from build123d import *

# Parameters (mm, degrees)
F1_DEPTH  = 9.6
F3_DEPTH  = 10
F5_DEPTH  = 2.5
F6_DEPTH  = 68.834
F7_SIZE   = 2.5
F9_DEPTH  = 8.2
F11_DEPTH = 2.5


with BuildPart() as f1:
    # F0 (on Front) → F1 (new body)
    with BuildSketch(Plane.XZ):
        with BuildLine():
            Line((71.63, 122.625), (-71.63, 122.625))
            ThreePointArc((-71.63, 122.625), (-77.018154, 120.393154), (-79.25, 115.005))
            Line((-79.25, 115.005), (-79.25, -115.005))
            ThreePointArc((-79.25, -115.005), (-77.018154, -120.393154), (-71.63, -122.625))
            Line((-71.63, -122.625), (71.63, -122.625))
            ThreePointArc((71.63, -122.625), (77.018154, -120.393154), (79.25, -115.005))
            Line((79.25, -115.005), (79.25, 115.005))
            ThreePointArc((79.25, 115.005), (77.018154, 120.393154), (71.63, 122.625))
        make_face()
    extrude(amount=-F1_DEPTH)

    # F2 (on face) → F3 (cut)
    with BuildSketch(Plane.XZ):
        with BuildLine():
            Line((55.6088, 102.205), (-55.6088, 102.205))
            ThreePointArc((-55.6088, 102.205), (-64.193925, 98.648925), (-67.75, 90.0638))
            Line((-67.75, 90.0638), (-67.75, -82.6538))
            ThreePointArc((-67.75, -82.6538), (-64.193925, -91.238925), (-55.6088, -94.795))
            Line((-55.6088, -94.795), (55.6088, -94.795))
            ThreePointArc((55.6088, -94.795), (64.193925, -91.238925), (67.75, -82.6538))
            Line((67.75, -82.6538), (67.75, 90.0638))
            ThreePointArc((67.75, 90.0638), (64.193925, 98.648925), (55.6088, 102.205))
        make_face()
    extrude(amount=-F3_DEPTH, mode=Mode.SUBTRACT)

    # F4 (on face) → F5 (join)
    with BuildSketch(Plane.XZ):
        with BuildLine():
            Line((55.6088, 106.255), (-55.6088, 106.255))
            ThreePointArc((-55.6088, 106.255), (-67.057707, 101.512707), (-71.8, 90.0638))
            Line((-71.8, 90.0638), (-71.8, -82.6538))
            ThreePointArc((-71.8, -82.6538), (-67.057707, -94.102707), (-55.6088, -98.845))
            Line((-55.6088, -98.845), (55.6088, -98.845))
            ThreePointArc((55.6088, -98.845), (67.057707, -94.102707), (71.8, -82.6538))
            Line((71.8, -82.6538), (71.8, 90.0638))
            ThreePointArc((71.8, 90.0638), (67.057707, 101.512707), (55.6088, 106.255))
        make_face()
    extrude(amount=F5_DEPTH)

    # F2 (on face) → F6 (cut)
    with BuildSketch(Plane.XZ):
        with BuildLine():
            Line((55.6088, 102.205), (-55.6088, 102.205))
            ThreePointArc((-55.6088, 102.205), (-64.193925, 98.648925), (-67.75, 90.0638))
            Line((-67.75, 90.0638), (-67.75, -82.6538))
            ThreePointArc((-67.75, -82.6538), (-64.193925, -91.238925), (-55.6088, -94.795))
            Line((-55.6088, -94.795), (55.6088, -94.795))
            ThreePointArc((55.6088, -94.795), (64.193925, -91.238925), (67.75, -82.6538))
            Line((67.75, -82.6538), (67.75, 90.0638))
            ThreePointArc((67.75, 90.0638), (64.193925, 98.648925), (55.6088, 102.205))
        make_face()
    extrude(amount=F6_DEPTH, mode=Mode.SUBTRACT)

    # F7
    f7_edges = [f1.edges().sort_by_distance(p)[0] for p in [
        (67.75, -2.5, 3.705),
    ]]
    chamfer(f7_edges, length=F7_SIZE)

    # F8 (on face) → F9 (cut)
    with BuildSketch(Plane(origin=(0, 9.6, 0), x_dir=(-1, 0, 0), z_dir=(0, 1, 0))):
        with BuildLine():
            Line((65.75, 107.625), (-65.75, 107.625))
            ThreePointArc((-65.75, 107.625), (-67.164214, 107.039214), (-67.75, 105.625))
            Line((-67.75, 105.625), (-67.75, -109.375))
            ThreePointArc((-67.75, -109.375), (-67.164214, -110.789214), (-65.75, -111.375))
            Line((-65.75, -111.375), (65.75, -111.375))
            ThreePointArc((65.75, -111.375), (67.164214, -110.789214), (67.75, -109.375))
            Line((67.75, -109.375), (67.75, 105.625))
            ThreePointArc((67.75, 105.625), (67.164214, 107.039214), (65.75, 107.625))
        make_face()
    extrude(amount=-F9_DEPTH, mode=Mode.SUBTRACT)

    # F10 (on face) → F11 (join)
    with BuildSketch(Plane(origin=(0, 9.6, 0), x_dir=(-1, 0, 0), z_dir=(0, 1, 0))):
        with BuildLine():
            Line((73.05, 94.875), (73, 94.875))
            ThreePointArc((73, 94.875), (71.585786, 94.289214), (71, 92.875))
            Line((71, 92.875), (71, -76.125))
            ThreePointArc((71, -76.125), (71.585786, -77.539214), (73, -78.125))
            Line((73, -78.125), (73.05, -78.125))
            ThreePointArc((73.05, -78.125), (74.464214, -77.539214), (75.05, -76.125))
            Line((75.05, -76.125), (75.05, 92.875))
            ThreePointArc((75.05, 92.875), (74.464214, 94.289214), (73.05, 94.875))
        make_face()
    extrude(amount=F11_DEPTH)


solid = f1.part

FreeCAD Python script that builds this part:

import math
import FreeCAD as App
import Part
import Sketcher

V = App.Vector
Q = App.Units.Quantity


def edges_at(feature, points):
    """Names of the edges that pass closest to the given points."""
    edges = feature.Shape.Edges
    near = lambda p: min(range(len(edges)), key=lambda i: edges[i].distToShape(Part.Vertex(*p))[0])
    return sorted({f"Edge{near(p) + 1}" for p in points})

doc = App.newDocument("Part")
params = doc.addObject("Spreadsheet::Sheet", "Params")
for row, (alias, value) in enumerate([
    ("sketch1_radius", "7.619999 mm"),
    ("sketch1_width", "143.26 mm"),
    ("sketch1_height", "230.01 mm"),
    ("pad1_length", "9.6 mm"),
    ("pocket1_length", "10 mm"),
    ("pad2_length", "2.5 mm"),
    ("pocket2_length", "68.834 mm"),
    ("chamfer_size", "2.5 mm"),
    ("sketch5_radius", "1.999999 mm"),
    ("sketch5_height", "215 mm"),
    ("sketch5_width", "131.5 mm"),
    ("pocket3_length", "8.2 mm"),
    ("sketch6_radius", "1.999999 mm"),
    ("sketch6_height", "169 mm"),
    ("sketch6_width", "0.05 mm"),
    ("pad3_length", "2.5 mm"),
], start=1):
    params.set(f"A{row}", alias)
    params.set(f"B{row}", "=" + value)
    params.setAlias(f"B{row}", alias)

body = doc.addObject("PartDesign::Body", "Body")

sketch1 = body.newObject("Sketcher::SketchObject", "Sketch")
sketch1.AttachmentSupport = (doc.getObject("XZ_Plane"), [""])
sketch1.MapMode = "FlatFace"
sketch1.addGeometry([
    Part.LineSegment(V(71.63, 122.625, 0), V(-71.63, 122.625, 0)),
    Part.ArcOfCircle(Part.Circle(V(-71.630001, 115.005001, 0), V(0, 0, 1), 7.619999), math.radians(89.999992), math.radians(180.000008)),
    Part.LineSegment(V(-79.25, 115.005, 0), V(-79.25, -115.005, 0)),
    Part.ArcOfCircle(Part.Circle(V(-71.630001, -115.005001, 0), V(0, 0, 1), 7.619999), math.radians(179.999992), math.radians(270.000008)),
    Part.LineSegment(V(-71.63, -122.625, 0), V(71.63, -122.625, 0)),
    Part.ArcOfCircle(Part.Circle(V(71.630001, -115.005001, 0), V(0, 0, 1), 7.619999), math.radians(-90.000008), math.radians(0.000008)),
    Part.LineSegment(V(79.25, -115.005, 0), V(79.25, 115.005, 0)),
    Part.ArcOfCircle(Part.Circle(V(71.630001, 115.005001, 0), V(0, 0, 1), 7.619999), math.radians(-0.000008), math.radians(90.000008)),
], False)
sketch1.addConstraint([
    Sketcher.Constraint("Tangent", 0, 2, 1, 1),
    Sketcher.Constraint("Tangent", 1, 2, 2, 1),
    Sketcher.Constraint("Tangent", 2, 2, 3, 1),
    Sketcher.Constraint("Tangent", 3, 2, 4, 1),
    Sketcher.Constraint("Tangent", 4, 2, 5, 1),
    Sketcher.Constraint("Tangent", 5, 2, 6, 1),
    Sketcher.Constraint("Tangent", 6, 2, 7, 1),
    Sketcher.Constraint("Tangent", 7, 2, 0, 1),
    Sketcher.Constraint("Horizontal", 0),
    Sketcher.Constraint("Vertical", 2),
    Sketcher.Constraint("Horizontal", 4),
    Sketcher.Constraint("Vertical", 6),
    Sketcher.Constraint("Equal", 1, 3),
    Sketcher.Constraint("Equal", 3, 5),
    Sketcher.Constraint("Equal", 5, 7),
    Sketcher.Constraint("Symmetric", 1, 3, 5, 3, -1, 1),
    Sketcher.Constraint("Radius", 1, Q("7.619999 mm")),
    Sketcher.Constraint("DistanceX", 0, 2, 0, 1, Q("143.26 mm")),
    Sketcher.Constraint("DistanceY", 2, 2, 2, 1, Q("230.01 mm")),
])
sketch1.setExpression("Constraints[16]", "Params.sketch1_radius")
sketch1.setExpression("Constraints[17]", "Params.sketch1_width")
sketch1.setExpression("Constraints[18]", "Params.sketch1_height")
pad1 = body.newObject("PartDesign::Pad", "Pad")
pad1.Profile = sketch1
pad1.setExpression("Length", "Params.pad1_length")
pad1.Reversed = True

sketch2 = body.newObject("Sketcher::SketchObject", "Sketch001")
sketch2.AttachmentSupport = (doc.getObject("XZ_Plane"), [""])
sketch2.MapMode = "FlatFace"
sketch2.addGeometry([
    Part.LineSegment(V(55.6088, 102.205, 0), V(-55.6088, 102.205, 0)),
    Part.ArcOfCircle(Part.Circle(V(-55.608801, 90.063801, 0), V(0, 0, 1), 12.141199), math.radians(89.999998), math.radians(180.000002)),
    Part.LineSegment(V(-67.75, 90.0638, 0), V(-67.75, -82.6538, 0)),
    Part.ArcOfCircle(Part.Circle(V(-55.608801, -82.653801, 0), V(0, 0, 1), 12.141199), math.radians(179.999998), math.radians(270.000002)),
    Part.LineSegment(V(-55.6088, -94.795, 0), V(55.6088, -94.795, 0)),
    Part.ArcOfCircle(Part.Circle(V(55.608801, -82.653801, 0), V(0, 0, 1), 12.141199), math.radians(-90.000002), math.radians(0.000002)),
    Part.LineSegment(V(67.75, -82.6538, 0), V(67.75, 90.0638, 0)),
    Part.ArcOfCircle(Part.Circle(V(55.608801, 90.063801, 0), V(0, 0, 1), 12.141199), math.radians(-0.000002), math.radians(90.000002)),
], False)
sketch2.addConstraint([
    Sketcher.Constraint("Tangent", 0, 2, 1, 1),
    Sketcher.Constraint("Tangent", 1, 2, 2, 1),
    Sketcher.Constraint("Tangent", 2, 2, 3, 1),
    Sketcher.Constraint("Tangent", 3, 2, 4, 1),
    Sketcher.Constraint("Tangent", 4, 2, 5, 1),
    Sketcher.Constraint("Tangent", 5, 2, 6, 1),
    Sketcher.Constraint("Tangent", 6, 2, 7, 1),
    Sketcher.Constraint("Tangent", 7, 2, 0, 1),
    Sketcher.Constraint("Horizontal", 0),
    Sketcher.Constraint("Vertical", 2),
    Sketcher.Constraint("Horizontal", 4),
    Sketcher.Constraint("Vertical", 6),
    Sketcher.Constraint("Equal", 1, 3),
    Sketcher.Constraint("Equal", 3, 5),
    Sketcher.Constraint("Equal", 5, 7),
    Sketcher.Constraint("Radius", 1, Q("12.141199 mm")),
    Sketcher.Constraint("DistanceX", 2, 2, 5, 2, Q("135.5 mm")),
    Sketcher.Constraint("DistanceX", 1, 2, -1, 1, Q("67.75 mm")),
    Sketcher.Constraint("DistanceY", 2, 2, 2, 1, Q("172.7176 mm")),
    Sketcher.Constraint("DistanceY", -1, 1, 0, 2, Q("102.205 mm")),
])
pocket1 = body.newObject("PartDesign::Pocket", "Pocket")
pocket1.Profile = sketch2
pocket1.setExpression("Length", "Params.pocket1_length")

sketch3 = body.newObject("Sketcher::SketchObject", "Sketch002")
sketch3.AttachmentSupport = (doc.getObject("XZ_Plane"), [""])
sketch3.MapMode = "FlatFace"
sketch3.addGeometry([
    Part.LineSegment(V(55.6088, 106.255, 0), V(-55.6088, 106.255, 0)),
    Part.ArcOfCircle(Part.Circle(V(-55.608799, 90.063799, 0), V(0, 0, 1), 16.191201), math.radians(90.000004), math.radians(179.999996)),
    Part.LineSegment(V(-71.8, 90.0638, 0), V(-71.8, -82.6538, 0)),
    Part.ArcOfCircle(Part.Circle(V(-55.608799, -82.653799, 0), V(0, 0, 1), 16.191201), math.radians(-179.999996), math.radians(-90.000004)),
    Part.LineSegment(V(-55.6088, -98.845, 0), V(55.6088, -98.845, 0)),
    Part.ArcOfCircle(Part.Circle(V(55.608799, -82.653799, 0), V(0, 0, 1), 16.191201), math.radians(-89.999996), math.radians(-0.000004)),
    Part.LineSegment(V(71.8, -82.6538, 0), V(71.8, 90.0638, 0)),
    Part.ArcOfCircle(Part.Circle(V(55.608799, 90.063799, 0), V(0, 0, 1), 16.191201), math.radians(0.000004), math.radians(89.999996)),
], False)
sketch3.addConstraint([
    Sketcher.Constraint("Tangent", 0, 2, 1, 1),
    Sketcher.Constraint("Tangent", 1, 2, 2, 1),
    Sketcher.Constraint("Tangent", 2, 2, 3, 1),
    Sketcher.Constraint("Tangent", 3, 2, 4, 1),
    Sketcher.Constraint("Tangent", 4, 2, 5, 1),
    Sketcher.Constraint("Tangent", 5, 2, 6, 1),
    Sketcher.Constraint("Tangent", 6, 2, 7, 1),
    Sketcher.Constraint("Tangent", 7, 2, 0, 1),
    Sketcher.Constraint("Horizontal", 0),
    Sketcher.Constraint("Vertical", 2),
    Sketcher.Constraint("Horizontal", 4),
    Sketcher.Constraint("Vertical", 6),
    Sketcher.Constraint("Equal", 1, 3),
    Sketcher.Constraint("Equal", 3, 5),
    Sketcher.Constraint("Equal", 5, 7),
    Sketcher.Constraint("DistanceX", 1, 2, -1, 1, Q("71.8 mm")),
    Sketcher.Constraint("DistanceX", -1, 1, 5, 2, Q("71.8 mm")),
    Sketcher.Constraint("Radius", 1, Q("16.191201 mm")),
    Sketcher.Constraint("DistanceY", 2, 2, 2, 1, Q("172.7176 mm")),
    Sketcher.Constraint("DistanceY", -1, 1, 0, 2, Q("106.255 mm")),
])
pad2 = body.newObject("PartDesign::Pad", "Pad001")
pad2.Profile = sketch3
pad2.setExpression("Length", "Params.pad2_length")

sketch4 = body.newObject("Sketcher::SketchObject", "Sketch003")
sketch4.AttachmentSupport = (doc.getObject("XZ_Plane"), [""])
sketch4.MapMode = "FlatFace"
sketch4.addGeometry([
    Part.LineSegment(V(55.6088, 102.205, 0), V(-55.6088, 102.205, 0)),
    Part.ArcOfCircle(Part.Circle(V(-55.608801, 90.063801, 0), V(0, 0, 1), 12.141199), math.radians(89.999998), math.radians(180.000002)),
    Part.LineSegment(V(-67.75, 90.0638, 0), V(-67.75, -82.6538, 0)),
    Part.ArcOfCircle(Part.Circle(V(-55.608801, -82.653801, 0), V(0, 0, 1), 12.141199), math.radians(179.999998), math.radians(270.000002)),
    Part.LineSegment(V(-55.6088, -94.795, 0), V(55.6088, -94.795, 0)),
    Part.ArcOfCircle(Part.Circle(V(55.608801, -82.653801, 0), V(0, 0, 1), 12.141199), math.radians(-90.000002), math.radians(0.000002)),
    Part.LineSegment(V(67.75, -82.6538, 0), V(67.75, 90.0638, 0)),
    Part.ArcOfCircle(Part.Circle(V(55.608801, 90.063801, 0), V(0, 0, 1), 12.141199), math.radians(-0.000002), math.radians(90.000002)),
], False)
sketch4.addConstraint([
    Sketcher.Constraint("Tangent", 0, 2, 1, 1),
    Sketcher.Constraint("Tangent", 1, 2, 2, 1),
    Sketcher.Constraint("Tangent", 2, 2, 3, 1),
    Sketcher.Constraint("Tangent", 3, 2, 4, 1),
    Sketcher.Constraint("Tangent", 4, 2, 5, 1),
    Sketcher.Constraint("Tangent", 5, 2, 6, 1),
    Sketcher.Constraint("Tangent", 6, 2, 7, 1),
    Sketcher.Constraint("Tangent", 7, 2, 0, 1),
    Sketcher.Constraint("Horizontal", 0),
    Sketcher.Constraint("Vertical", 2),
    Sketcher.Constraint("Horizontal", 4),
    Sketcher.Constraint("Vertical", 6),
    Sketcher.Constraint("Equal", 1, 3),
    Sketcher.Constraint("Equal", 3, 5),
    Sketcher.Constraint("Equal", 5, 7),
    Sketcher.Constraint("Radius", 1, Q("12.141199 mm")),
    Sketcher.Constraint("DistanceX", 2, 2, 5, 2, Q("135.5 mm")),
    Sketcher.Constraint("DistanceX", 1, 2, -1, 1, Q("67.75 mm")),
    Sketcher.Constraint("DistanceY", 2, 2, 2, 1, Q("172.7176 mm")),
    Sketcher.Constraint("DistanceY", -1, 1, 0, 2, Q("102.205 mm")),
])
pocket2 = body.newObject("PartDesign::Pocket", "Pocket001")
pocket2.Profile = sketch4
pocket2.setExpression("Length", "Params.pocket2_length")
pocket2.Reversed = True
doc.recompute()

chamfer = body.newObject("PartDesign::Chamfer", "Chamfer")
chamfer.Base = (pocket2, edges_at(pocket2, [(67.75, -2.5, 3.705)]))
chamfer.setExpression("Size", "Params.chamfer_size")

sketch5 = body.newObject("Sketcher::SketchObject", "Sketch004")
sketch5.AttachmentSupport = (doc.getObject("XZ_Plane"), [""])
sketch5.MapMode = "FlatFace"
sketch5.AttachmentOffset = App.Placement(V(0, 0, -9.6), App.Rotation())
sketch5.addGeometry([
    Part.LineSegment(V(-65.75, 107.625, 0), V(65.75, 107.625, 0)),
    Part.ArcOfCircle(Part.Circle(V(65.750001, 105.625001, 0), V(0, 0, 1), 1.999999), math.radians(-0.000043), math.radians(90.000043)),
    Part.LineSegment(V(67.75, 105.625, 0), V(67.75, -109.375, 0)),
    Part.ArcOfCircle(Part.Circle(V(65.750001, -109.375001, 0), V(0, 0, 1), 1.999999), math.radians(-90.000043), math.radians(0.000043)),
    Part.LineSegment(V(65.75, -111.375, 0), V(-65.75, -111.375, 0)),
    Part.ArcOfCircle(Part.Circle(V(-65.750001, -109.375001, 0), V(0, 0, 1), 1.999999), math.radians(179.999957), math.radians(270.000043)),
    Part.LineSegment(V(-67.75, -109.375, 0), V(-67.75, 105.625, 0)),
    Part.ArcOfCircle(Part.Circle(V(-65.750001, 105.625001, 0), V(0, 0, 1), 1.999999), math.radians(89.999957), math.radians(180.000043)),
], False)
sketch5.addConstraint([
    Sketcher.Constraint("Tangent", 0, 2, 1, 2),
    Sketcher.Constraint("Tangent", 1, 1, 2, 1),
    Sketcher.Constraint("Tangent", 2, 2, 3, 2),
    Sketcher.Constraint("Tangent", 3, 1, 4, 1),
    Sketcher.Constraint("Tangent", 4, 2, 5, 2),
    Sketcher.Constraint("Tangent", 5, 1, 6, 1),
    Sketcher.Constraint("Tangent", 6, 2, 7, 2),
    Sketcher.Constraint("Tangent", 7, 1, 0, 1),
    Sketcher.Constraint("Horizontal", 0),
    Sketcher.Constraint("Vertical", 2),
    Sketcher.Constraint("Horizontal", 4),
    Sketcher.Constraint("Vertical", 6),
    Sketcher.Constraint("Equal", 1, 3),
    Sketcher.Constraint("Equal", 3, 5),
    Sketcher.Constraint("Equal", 5, 7),
    Sketcher.Constraint("Radius", 1, Q("1.999999 mm")),
    Sketcher.Constraint("DistanceY", 2, 2, 2, 1, Q("215 mm")),
    Sketcher.Constraint("DistanceX", 0, 1, 0, 2, Q("131.5 mm")),
    Sketcher.Constraint("DistanceX", -1, 1, 1, 3, Q("65.750001 mm")),
    Sketcher.Constraint("DistanceY", -1, 1, 1, 3, Q("105.625001 mm")),
])
sketch5.setExpression("Constraints[15]", "Params.sketch5_radius")
sketch5.setExpression("Constraints[16]", "Params.sketch5_height")
sketch5.setExpression("Constraints[17]", "Params.sketch5_width")
pocket3 = body.newObject("PartDesign::Pocket", "Pocket002")
pocket3.Profile = sketch5
pocket3.setExpression("Length", "Params.pocket3_length")
pocket3.Reversed = True

sketch6 = body.newObject("Sketcher::SketchObject", "Sketch005")
sketch6.AttachmentSupport = (doc.getObject("XZ_Plane"), [""])
sketch6.MapMode = "FlatFace"
sketch6.AttachmentOffset = App.Placement(V(0, 0, -9.6), App.Rotation())
sketch6.addGeometry([
    Part.LineSegment(V(-73.05, 94.875, 0), V(-73, 94.875, 0)),
    Part.ArcOfCircle(Part.Circle(V(-72.999999, 92.875001, 0), V(0, 0, 1), 1.999999), math.radians(-0.000043), math.radians(90.000043)),
    Part.LineSegment(V(-71, 92.875, 0), V(-71, -76.125, 0)),
    Part.ArcOfCircle(Part.Circle(V(-72.999999, -76.125001, 0), V(0, 0, 1), 1.999999), math.radians(-90.000043), math.radians(0.000043)),
    Part.LineSegment(V(-73, -78.125, 0), V(-73.05, -78.125, 0)),
    Part.ArcOfCircle(Part.Circle(V(-73.050001, -76.125001, 0), V(0, 0, 1), 1.999999), math.radians(179.999957), math.radians(270.000043)),
    Part.LineSegment(V(-75.05, -76.125, 0), V(-75.05, 92.875, 0)),
    Part.ArcOfCircle(Part.Circle(V(-73.050001, 92.875001, 0), V(0, 0, 1), 1.999999), math.radians(89.999957), math.radians(180.000043)),
], False)
sketch6.addConstraint([
    Sketcher.Constraint("Tangent", 0, 2, 1, 2),
    Sketcher.Constraint("Tangent", 1, 1, 2, 1),
    Sketcher.Constraint("Tangent", 2, 2, 3, 2),
    Sketcher.Constraint("Tangent", 3, 1, 4, 1),
    Sketcher.Constraint("Tangent", 4, 2, 5, 2),
    Sketcher.Constraint("Tangent", 5, 1, 6, 1),
    Sketcher.Constraint("Tangent", 6, 2, 7, 2),
    Sketcher.Constraint("Tangent", 7, 1, 0, 1),
    Sketcher.Constraint("Horizontal", 0),
    Sketcher.Constraint("Vertical", 2),
    Sketcher.Constraint("Horizontal", 4),
    Sketcher.Constraint("Vertical", 6),
    Sketcher.Constraint("Equal", 1, 3),
    Sketcher.Constraint("Equal", 3, 5),
    Sketcher.Constraint("Equal", 5, 7),
    Sketcher.Constraint("Radius", 1, Q("1.999999 mm")),
    Sketcher.Constraint("DistanceY", 2, 2, 2, 1, Q("169 mm")),
    Sketcher.Constraint("DistanceX", 1, 3, -1, 1, Q("72.999999 mm")),
    Sketcher.Constraint("DistanceX", 0, 1, 0, 2, Q("0.05 mm")),
    Sketcher.Constraint("DistanceY", -1, 1, 1, 3, Q("92.875001 mm")),
])
sketch6.setExpression("Constraints[15]", "Params.sketch6_radius")
sketch6.setExpression("Constraints[16]", "Params.sketch6_height")
sketch6.setExpression("Constraints[18]", "Params.sketch6_width")
pad3 = body.newObject("PartDesign::Pad", "Pad002")
pad3.Profile = sketch6
pad3.setExpression("Length", "Params.pad3_length")
pad3.Reversed = True

doc.recompute()
